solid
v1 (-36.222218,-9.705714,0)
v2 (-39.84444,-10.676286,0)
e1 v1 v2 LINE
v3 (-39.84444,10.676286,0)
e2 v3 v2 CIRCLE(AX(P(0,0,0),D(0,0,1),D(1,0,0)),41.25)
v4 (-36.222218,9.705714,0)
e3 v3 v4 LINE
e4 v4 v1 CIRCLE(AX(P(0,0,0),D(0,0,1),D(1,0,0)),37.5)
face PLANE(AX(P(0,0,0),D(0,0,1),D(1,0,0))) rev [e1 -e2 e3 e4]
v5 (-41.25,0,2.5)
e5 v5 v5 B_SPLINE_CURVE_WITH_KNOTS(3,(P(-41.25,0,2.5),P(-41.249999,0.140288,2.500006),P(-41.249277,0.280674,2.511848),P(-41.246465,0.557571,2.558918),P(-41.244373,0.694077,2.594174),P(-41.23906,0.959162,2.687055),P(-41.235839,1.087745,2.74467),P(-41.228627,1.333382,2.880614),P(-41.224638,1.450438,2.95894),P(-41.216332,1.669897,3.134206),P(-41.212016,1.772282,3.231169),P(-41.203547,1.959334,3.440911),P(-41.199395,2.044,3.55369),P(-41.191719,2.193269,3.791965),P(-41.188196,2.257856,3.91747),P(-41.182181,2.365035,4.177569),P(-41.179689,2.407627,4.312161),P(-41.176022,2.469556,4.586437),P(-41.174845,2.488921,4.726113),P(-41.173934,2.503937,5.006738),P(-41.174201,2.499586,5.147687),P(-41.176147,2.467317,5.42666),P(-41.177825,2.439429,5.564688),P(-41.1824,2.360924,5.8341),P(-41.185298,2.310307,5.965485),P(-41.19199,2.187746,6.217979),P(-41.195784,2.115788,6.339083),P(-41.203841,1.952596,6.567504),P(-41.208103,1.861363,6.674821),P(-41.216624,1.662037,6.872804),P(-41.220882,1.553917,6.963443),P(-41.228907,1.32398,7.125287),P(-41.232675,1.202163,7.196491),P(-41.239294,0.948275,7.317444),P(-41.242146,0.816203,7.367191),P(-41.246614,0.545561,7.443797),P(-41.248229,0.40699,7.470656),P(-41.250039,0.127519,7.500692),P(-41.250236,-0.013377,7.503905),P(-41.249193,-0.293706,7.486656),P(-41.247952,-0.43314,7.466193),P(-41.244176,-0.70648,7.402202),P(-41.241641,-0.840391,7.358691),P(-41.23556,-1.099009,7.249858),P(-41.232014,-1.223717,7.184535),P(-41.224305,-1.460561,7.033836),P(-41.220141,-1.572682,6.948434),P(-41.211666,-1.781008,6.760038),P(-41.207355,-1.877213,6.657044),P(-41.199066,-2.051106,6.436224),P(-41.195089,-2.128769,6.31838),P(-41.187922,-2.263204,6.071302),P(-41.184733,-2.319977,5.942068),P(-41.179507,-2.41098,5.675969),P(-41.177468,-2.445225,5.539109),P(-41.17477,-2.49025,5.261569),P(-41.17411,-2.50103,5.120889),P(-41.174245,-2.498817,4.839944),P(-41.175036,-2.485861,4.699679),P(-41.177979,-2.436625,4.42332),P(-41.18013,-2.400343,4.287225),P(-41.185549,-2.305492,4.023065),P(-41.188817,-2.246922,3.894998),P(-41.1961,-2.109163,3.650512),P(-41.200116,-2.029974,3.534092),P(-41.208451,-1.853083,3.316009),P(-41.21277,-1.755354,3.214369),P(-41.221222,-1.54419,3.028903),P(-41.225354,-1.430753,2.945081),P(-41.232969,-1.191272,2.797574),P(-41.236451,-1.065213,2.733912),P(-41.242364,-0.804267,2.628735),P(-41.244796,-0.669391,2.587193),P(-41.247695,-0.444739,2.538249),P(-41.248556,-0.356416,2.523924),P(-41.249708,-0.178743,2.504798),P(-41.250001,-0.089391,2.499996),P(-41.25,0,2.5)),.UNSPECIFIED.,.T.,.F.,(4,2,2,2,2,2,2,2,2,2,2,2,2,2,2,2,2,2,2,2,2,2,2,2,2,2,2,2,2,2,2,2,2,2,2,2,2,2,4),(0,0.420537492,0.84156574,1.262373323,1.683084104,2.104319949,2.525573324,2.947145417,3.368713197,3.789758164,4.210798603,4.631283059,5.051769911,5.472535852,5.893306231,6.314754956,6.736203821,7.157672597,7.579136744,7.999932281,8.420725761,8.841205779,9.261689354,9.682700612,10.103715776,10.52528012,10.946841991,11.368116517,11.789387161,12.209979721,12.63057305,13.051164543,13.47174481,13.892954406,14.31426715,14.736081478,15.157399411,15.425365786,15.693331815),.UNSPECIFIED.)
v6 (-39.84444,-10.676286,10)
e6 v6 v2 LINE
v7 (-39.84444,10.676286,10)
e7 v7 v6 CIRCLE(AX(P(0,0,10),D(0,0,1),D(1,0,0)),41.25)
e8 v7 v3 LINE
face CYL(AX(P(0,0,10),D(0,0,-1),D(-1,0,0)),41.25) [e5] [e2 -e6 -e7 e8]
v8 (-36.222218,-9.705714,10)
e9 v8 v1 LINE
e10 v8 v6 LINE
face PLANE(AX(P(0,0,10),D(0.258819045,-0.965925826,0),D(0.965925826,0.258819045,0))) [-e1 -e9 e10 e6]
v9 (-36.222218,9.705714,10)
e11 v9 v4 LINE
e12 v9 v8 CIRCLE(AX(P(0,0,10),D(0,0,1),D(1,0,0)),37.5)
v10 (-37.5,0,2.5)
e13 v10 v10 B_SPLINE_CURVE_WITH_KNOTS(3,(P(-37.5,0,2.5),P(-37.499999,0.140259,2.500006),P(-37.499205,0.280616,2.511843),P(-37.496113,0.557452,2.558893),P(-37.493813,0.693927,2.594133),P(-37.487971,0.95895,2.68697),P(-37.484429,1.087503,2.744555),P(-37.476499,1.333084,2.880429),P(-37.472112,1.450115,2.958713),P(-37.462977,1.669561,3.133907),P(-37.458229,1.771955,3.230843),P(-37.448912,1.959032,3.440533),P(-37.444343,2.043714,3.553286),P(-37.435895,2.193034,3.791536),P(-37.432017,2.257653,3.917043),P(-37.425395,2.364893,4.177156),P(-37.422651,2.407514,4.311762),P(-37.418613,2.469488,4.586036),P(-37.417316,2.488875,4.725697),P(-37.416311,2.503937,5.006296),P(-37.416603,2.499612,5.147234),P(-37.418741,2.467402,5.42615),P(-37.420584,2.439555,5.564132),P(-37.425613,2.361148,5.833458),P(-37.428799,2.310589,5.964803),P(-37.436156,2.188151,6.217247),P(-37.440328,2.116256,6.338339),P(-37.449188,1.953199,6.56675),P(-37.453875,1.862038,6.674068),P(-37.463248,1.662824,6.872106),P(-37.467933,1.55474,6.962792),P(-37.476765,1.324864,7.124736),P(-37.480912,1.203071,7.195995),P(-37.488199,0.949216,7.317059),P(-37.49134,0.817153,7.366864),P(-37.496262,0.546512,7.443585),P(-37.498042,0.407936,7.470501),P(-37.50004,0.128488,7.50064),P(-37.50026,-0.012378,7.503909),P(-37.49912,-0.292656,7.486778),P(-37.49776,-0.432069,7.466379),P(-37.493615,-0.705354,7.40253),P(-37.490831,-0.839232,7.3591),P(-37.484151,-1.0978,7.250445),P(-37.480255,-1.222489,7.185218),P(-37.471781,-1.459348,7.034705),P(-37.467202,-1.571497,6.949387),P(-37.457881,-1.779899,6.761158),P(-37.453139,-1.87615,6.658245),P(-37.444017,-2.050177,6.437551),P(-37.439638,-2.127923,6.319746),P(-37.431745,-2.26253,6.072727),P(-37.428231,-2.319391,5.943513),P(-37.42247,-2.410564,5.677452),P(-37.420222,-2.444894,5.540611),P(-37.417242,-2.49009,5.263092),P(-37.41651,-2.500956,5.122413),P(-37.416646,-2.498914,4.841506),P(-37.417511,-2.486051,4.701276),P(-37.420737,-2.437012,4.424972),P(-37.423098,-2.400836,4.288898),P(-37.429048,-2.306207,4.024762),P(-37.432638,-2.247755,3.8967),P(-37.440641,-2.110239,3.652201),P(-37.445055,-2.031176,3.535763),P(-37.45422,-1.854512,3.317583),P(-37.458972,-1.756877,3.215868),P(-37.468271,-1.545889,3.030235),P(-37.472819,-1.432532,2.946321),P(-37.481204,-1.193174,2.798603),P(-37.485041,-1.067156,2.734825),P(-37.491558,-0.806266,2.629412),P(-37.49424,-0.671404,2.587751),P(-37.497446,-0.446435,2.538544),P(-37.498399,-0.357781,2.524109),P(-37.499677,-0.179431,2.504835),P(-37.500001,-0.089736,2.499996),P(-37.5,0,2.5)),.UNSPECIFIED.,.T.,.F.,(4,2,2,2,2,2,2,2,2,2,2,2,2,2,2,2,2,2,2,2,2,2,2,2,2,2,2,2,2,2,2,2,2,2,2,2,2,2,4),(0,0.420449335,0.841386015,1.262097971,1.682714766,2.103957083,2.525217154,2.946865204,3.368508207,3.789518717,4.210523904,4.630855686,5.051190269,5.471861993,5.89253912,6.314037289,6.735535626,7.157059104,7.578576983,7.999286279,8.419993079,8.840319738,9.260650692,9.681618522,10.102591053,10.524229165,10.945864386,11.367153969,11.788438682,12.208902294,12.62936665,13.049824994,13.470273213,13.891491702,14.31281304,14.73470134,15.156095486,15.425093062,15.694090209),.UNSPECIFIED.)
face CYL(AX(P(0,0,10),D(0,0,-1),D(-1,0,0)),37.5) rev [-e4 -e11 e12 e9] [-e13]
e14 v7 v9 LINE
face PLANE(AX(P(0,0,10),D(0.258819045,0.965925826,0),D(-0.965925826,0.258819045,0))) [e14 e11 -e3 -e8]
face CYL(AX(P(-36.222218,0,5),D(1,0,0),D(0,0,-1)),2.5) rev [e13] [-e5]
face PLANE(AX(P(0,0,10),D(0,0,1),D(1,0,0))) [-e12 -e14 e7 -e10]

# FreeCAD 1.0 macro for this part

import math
import FreeCAD as App
import Part
import Sketcher
Q = App.Units.Quantity

doc = App.newDocument("Part")
params = doc.addObject("Spreadsheet::Sheet", "Params")
for row, (alias, value) in enumerate([
    ("sketch1_radius", "37.5 mm"),
    ("sketch1_radius2", "41.25 mm"),
    ("pad1_length", "10 mm"),
    ("sketch2_diameter", "5 mm"),
], start=1):
    params.set(f"A{row}", alias)
    params.set(f"B{row}", "=" + value)
    params.setAlias(f"B{row}", alias)

body = doc.addObject("PartDesign::Body", "Body")

# Sketch on XY plane
sketch1 = doc.addObject("Sketcher::SketchObject", "Sketch")
body.addObject(sketch1)
sketch1.AttachmentSupport = (doc.XY_Plane, [""])
sketch1.MapMode = "FlatFace"
sketch1.addGeometry(Part.LineSegment(App.Vector(-39.8, -10.7, 0), App.Vector(-36.2, -9.7, 0)), False)
sketch1.addGeometry(Part.ArcOfCircle(Part.Circle(App.Vector(0, 0, 0), App.Vector(0, 0, 1), 37.5), math.radians(165), math.radians(195)), False)
sketch1.addGeometry(Part.LineSegment(App.Vector(-36.2, 9.7, 0), App.Vector(-39.8, 10.7, 0)), False)
sketch1.addGeometry(Part.ArcOfCircle(Part.Circle(App.Vector(0, 0, 0), App.Vector(0, 0, 1), 41.2), math.radians(165), math.radians(195)), False)
sketch1.addConstraint(Sketcher.Constraint("Coincident", 0, 2, 1, 2))
sketch1.addConstraint(Sketcher.Constraint("Coincident", 1, 1, 2, 1))
sketch1.addConstraint(Sketcher.Constraint("Coincident", 2, 2, 3, 1))
sketch1.addConstraint(Sketcher.Constraint("Coincident", 3, 2, 0, 1))
sketch1.addConstraint(Sketcher.Constraint("Coincident", 1, 3, -1, 1))
sketch1.addConstraint(Sketcher.Constraint("Coincident", 3, 3, -1, 1))
sketch1.addConstraint(Sketcher.Constraint("Vertical", 0, 2, 1, 1))
sketch1.addConstraint(Sketcher.Constraint("Vertical", 2, 2, 3, 2))
sketch1.addConstraint(Sketcher.Constraint("Radius", 1, Q("37.5 mm")))
sketch1.addConstraint(Sketcher.Constraint("Angle", 0, Q("15 deg")))
sketch1.addConstraint(Sketcher.Constraint("Radius", 3, Q("41.25 mm")))
sketch1.addConstraint(Sketcher.Constraint("DistanceY", 0, 2, 2, 2, Q("20.382 mm")))
sketch1.setExpression("Constraints[8]", "Params.sketch1_radius")
sketch1.setExpression("Constraints[10]", "Params.sketch1_radius2")
pad1 = doc.addObject("PartDesign::Pad", "Pad")
body.addObject(pad1)
pad1.Profile = sketch1
pad1.setExpression("Length", "Params.pad1_length")

# Sketch on YZ plane
sketch2 = doc.addObject("Sketcher::SketchObject", "Sketch001")
body.addObject(sketch2)
sketch2.AttachmentSupport = (doc.YZ_Plane, [""])
sketch2.MapMode = "FlatFace"
sketch2.addGeometry(Part.Circle(App.Vector(0, 5, 0), App.Vector(0, 0, 1), 2.5), False)
sketch2.addConstraint(Sketcher.Constraint("PointOnObject", 0, 3, -2))
sketch2.addConstraint(Sketcher.Constraint("Diameter", 0, Q("5 mm")))
sketch2.addConstraint(Sketcher.Constraint("DistanceY", -1, 1, 0, 3, Q("5 mm")))
sketch2.setExpression("Constraints[1]", "Params.sketch2_diameter")
pocket1 = doc.addObject("PartDesign::Pocket", "Pocket")
body.addObject(pocket1)
pocket1.Profile = sketch2
pocket1.Type = "ThroughAll"
pocket1.Midplane = True

doc.recompute()
